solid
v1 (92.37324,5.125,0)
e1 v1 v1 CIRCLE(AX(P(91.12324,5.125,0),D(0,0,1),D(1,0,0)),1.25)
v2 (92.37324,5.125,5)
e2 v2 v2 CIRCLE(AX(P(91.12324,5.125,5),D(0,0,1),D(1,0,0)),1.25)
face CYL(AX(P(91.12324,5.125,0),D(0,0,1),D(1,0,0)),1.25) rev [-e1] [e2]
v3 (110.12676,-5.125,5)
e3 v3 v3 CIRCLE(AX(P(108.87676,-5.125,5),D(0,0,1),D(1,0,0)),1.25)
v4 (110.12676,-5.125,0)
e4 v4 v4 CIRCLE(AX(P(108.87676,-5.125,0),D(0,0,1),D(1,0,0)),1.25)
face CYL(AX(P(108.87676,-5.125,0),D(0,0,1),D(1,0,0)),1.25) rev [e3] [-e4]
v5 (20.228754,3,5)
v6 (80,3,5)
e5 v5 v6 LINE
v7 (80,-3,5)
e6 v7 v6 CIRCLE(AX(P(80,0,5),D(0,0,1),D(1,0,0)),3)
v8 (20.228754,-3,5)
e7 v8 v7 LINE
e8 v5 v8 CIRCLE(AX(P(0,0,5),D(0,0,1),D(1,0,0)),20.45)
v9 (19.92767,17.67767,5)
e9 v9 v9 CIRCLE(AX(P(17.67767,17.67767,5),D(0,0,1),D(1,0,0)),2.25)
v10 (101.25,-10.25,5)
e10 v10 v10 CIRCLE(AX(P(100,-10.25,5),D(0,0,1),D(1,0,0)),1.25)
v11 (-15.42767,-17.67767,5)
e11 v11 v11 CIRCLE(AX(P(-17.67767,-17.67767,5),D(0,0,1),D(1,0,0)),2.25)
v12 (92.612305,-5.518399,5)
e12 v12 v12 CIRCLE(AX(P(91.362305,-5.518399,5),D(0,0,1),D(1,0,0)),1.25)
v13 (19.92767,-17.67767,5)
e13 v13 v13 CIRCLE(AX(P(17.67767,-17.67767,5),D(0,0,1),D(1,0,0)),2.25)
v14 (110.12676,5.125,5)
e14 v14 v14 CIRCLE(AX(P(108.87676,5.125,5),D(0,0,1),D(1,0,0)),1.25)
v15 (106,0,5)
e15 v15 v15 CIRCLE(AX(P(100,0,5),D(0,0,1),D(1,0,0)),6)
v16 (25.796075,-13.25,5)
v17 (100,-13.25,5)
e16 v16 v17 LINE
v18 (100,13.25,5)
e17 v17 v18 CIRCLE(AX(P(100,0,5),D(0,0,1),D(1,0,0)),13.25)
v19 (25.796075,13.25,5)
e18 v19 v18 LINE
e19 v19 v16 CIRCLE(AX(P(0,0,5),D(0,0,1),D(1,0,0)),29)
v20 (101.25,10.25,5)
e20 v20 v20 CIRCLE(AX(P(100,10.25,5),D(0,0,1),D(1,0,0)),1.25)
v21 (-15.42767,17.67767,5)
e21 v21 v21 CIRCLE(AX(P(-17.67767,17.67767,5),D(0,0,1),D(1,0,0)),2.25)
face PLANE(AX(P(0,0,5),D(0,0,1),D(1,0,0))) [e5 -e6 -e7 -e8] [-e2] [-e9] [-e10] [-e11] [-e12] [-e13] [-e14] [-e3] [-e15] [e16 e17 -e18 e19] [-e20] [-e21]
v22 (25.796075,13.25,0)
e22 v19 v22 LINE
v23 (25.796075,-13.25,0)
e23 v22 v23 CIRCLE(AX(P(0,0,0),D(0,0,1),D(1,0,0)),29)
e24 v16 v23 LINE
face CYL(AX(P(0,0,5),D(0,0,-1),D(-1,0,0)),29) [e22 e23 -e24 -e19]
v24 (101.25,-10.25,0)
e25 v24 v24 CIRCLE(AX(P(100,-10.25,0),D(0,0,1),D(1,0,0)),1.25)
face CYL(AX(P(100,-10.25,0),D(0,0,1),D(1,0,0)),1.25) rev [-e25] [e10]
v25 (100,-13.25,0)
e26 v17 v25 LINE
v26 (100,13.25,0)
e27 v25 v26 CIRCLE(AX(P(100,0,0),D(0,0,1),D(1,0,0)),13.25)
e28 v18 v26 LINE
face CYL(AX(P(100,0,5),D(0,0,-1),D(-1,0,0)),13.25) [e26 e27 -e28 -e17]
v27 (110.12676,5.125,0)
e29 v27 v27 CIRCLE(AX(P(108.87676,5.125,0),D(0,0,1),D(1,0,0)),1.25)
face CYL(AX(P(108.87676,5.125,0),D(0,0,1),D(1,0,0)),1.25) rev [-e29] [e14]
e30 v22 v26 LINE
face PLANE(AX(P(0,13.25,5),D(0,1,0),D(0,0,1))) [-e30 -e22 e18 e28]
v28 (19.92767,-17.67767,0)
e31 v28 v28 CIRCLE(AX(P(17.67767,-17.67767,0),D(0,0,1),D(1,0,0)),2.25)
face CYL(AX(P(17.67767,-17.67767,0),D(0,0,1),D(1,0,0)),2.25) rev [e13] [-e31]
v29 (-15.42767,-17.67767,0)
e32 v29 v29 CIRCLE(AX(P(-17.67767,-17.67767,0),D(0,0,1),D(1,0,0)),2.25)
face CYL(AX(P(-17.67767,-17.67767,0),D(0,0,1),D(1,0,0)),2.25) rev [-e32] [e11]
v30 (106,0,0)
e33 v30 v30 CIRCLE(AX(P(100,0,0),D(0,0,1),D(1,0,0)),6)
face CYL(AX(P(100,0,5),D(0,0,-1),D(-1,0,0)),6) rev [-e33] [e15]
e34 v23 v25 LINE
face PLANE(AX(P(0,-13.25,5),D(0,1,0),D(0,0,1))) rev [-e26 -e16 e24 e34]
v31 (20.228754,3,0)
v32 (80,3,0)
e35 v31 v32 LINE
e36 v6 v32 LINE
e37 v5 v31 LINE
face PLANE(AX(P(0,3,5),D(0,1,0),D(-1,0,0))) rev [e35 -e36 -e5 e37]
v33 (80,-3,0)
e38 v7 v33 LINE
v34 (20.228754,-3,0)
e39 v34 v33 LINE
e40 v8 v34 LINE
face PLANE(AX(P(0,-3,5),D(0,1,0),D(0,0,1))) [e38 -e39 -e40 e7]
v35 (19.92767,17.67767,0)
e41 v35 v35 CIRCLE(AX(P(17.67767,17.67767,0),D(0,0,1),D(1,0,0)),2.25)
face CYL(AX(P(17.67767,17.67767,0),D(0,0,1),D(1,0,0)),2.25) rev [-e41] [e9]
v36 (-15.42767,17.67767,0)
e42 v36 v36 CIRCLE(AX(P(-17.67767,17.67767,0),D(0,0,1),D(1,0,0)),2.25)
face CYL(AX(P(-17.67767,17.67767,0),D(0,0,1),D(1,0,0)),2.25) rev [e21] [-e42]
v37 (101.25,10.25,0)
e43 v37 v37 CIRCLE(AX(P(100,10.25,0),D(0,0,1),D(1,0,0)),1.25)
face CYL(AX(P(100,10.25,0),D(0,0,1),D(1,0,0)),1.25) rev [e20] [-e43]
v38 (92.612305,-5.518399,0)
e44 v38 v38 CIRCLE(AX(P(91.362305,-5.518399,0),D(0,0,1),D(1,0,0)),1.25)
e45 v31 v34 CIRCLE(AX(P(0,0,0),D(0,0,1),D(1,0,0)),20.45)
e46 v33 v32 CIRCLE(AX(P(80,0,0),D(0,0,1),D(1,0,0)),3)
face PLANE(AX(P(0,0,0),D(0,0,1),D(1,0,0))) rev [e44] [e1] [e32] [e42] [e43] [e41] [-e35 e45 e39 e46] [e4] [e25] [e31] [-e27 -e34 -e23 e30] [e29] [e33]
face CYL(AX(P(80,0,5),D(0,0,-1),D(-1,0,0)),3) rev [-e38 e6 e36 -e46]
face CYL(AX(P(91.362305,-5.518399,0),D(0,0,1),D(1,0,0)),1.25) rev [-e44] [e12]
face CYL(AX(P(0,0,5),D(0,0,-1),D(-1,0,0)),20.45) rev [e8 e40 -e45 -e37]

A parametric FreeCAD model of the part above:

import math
import FreeCAD as App
import Part
import Sketcher
from FreeCAD import Vector

doc = App.newDocument("Part")
params = doc.addObject("Spreadsheet::Sheet", "Params")
for row, (alias, value) in enumerate([
    ("sketch1_diameter", "12 mm"),
    ("sketch1_radius", "29 mm"),
    ("sketch1_radius2", "3 mm"),
    ("sketch1_radius3", "13.25 mm"),
    ("sketch1_radius4", "20.45 mm"),
    ("pad1_length", "5 mm"),
    ("sketch2_diameter", "4.5 mm"),
    ("sketch2_diameter2", "2.5 mm"),
], start=1):
    params.set(f"A{row}", alias)
    params.set(f"B{row}", "=" + value)
    params.setAlias(f"B{row}", alias)

body = doc.addObject("PartDesign::Body", "Body")

# Sketch on XY plane
sketch1 = body.newObject("Sketcher::SketchObject", "Sketch")
sketch1.AttachmentSupport = (doc.getObject("XY_Plane"), [""])
sketch1.MapMode = "FlatFace"
sketch1.addGeometry([
    Part.ArcOfCircle(Part.Circle(Vector(0, 0, 0), Vector(0, 0, 1), 29), math.radians(27), math.radians(333)),  # 0
    Part.LineSegment(Vector(25.8, -13.2, 0), Vector(100, -13.2, 0)),  # 1
    Part.ArcOfCircle(Part.Circle(Vector(100, 0, 0), Vector(0, 0, 1), 13.2), math.radians(-90), math.radians(90)),  # 2
    Part.LineSegment(Vector(100, 13.2, 0), Vector(25.8, 13.2, 0)),  # 3
    Part.ArcOfCircle(Part.Circle(Vector(0, 0, 0), Vector(0, 0, 1), 20.4), math.radians(40), math.radians(320)),  # 4
    Part.ArcOfCircle(Part.Circle(Vector(0, 0, 0), Vector(0, 0, 1), 20.5), math.radians(8), math.radians(40)),  # 5
    Part.LineSegment(Vector(20.2, 3, 0), Vector(80, 3, 0)),  # 6
    Part.ArcOfCircle(Part.Circle(Vector(80, 0, 0), Vector(0, 0, 1), 3), math.radians(0), math.radians(90)),  # 7
    Part.ArcOfCircle(Part.Circle(Vector(80, 0, 0), Vector(0, 0, 1), 3), math.radians(-90), math.radians(0)),  # 8
    Part.LineSegment(Vector(80, -3, 0), Vector(20.2, -3, 0)),  # 9
    Part.ArcOfCircle(Part.Circle(Vector(0, 0, 0), Vector(0, 0, 1), 20.5), math.radians(-40), math.radians(-8)),  # 10
    Part.Circle(Vector(100, 0, 0), Vector(0, 0, 1), 6),  # 11
], False)
sketch1.addConstraint([
    Sketcher.Constraint("Coincident", 0, 2, 1, 1),
    Sketcher.Constraint("Tangent", 1, 2, 2, 1),
    Sketcher.Constraint("Tangent", 2, 2, 3, 1),
    Sketcher.Constraint("Coincident", 3, 2, 0, 1),
    Sketcher.Constraint("Tangent", 4, 1, 5, 2),
    Sketcher.Constraint("Coincident", 5, 1, 6, 1),
    Sketcher.Constraint("Tangent", 6, 2, 7, 2),
    Sketcher.Constraint("Tangent", 7, 1, 8, 2),
    Sketcher.Constraint("Tangent", 8, 1, 9, 1),
    Sketcher.Constraint("Coincident", 9, 2, 10, 2),
    Sketcher.Constraint("Tangent", 10, 1, 4, 2),
    Sketcher.Constraint("Horizontal", 1),
    Sketcher.Constraint("Horizontal", 3),
    Sketcher.Constraint("Horizontal", 6),
    Sketcher.Constraint("Horizontal", 9),
    Sketcher.Constraint("Coincident", 0, 3, -1, 1),
    Sketcher.Constraint("Coincident", 4, 3, -1, 1),
    Sketcher.Constraint("Coincident", 11, 3, 2, 3),
    Sketcher.Constraint("Equal", 4, 5),
    Sketcher.Constraint("Equal", 7, 8),
    Sketcher.Constraint("Equal", 5, 10),
    Sketcher.Constraint("PointOnObject", 2, 3, -1),
    Sketcher.Constraint("PointOnObject", 7, 3, -1),
    Sketcher.Constraint("PointOnObject", 7, 1, -1),
    Sketcher.Constraint("Horizontal", 3, 2, 4, 1),
    Sketcher.Constraint("Horizontal", 1, 2, 10, 1),
    Sketcher.Constraint("Diameter", 11, 12.0),
    Sketcher.Constraint("Radius", 0, 29.0),
    Sketcher.Constraint("Radius", 7, 3.0),
    Sketcher.Constraint("Radius", 2, 13.25),
    Sketcher.Constraint("Radius", 4, 20.45),
    Sketcher.Constraint("DistanceX", -1, 1, 2, 3, 100.0),
    Sketcher.Constraint("DistanceX", -1, 1, 7, 3, 80.0),
])
sketch1.setExpression("Constraints[26]", "Params.sketch1_diameter")
sketch1.setExpression("Constraints[27]", "Params.sketch1_radius")
sketch1.setExpression("Constraints[28]", "Params.sketch1_radius2")
sketch1.setExpression("Constraints[29]", "Params.sketch1_radius3")
sketch1.setExpression("Constraints[30]", "Params.sketch1_radius4")
pad1 = body.newObject("PartDesign::Pad", "Pad")
pad1.Profile = sketch1
pad1.setExpression("Length", "Params.pad1_length")

# Sketch on XY plane
sketch2 = body.newObject("Sketcher::SketchObject", "Sketch001")
sketch2.AttachmentSupport = (doc.getObject("XY_Plane"), [""])
sketch2.MapMode = "FlatFace"
sketch2.AttachmentOffset = App.Placement(Vector(0, 0, 5), App.Rotation())
sketch2.addGeometry([
    Part.Circle(Vector(17.7, 17.7, 0), Vector(0, 0, 1), 2.2),  # 0
    Part.Circle(Vector(17.7, -17.7, 0), Vector(0, 0, 1), 2.2),  # 1
    Part.Circle(Vector(-17.7, -17.7, 0), Vector(0, 0, 1), 2.2),  # 2
    Part.Circle(Vector(-17.7, 17.7, 0), Vector(0, 0, 1), 2.2),  # 3
    Part.Circle(Vector(100, 10.2, 0), Vector(0, 0, 1), 1.2),  # 4
    Part.Circle(Vector(108.9, 5.1, 0), Vector(0, 0, 1), 1.2),  # 5
    Part.Circle(Vector(91.1, 5.1, 0), Vector(0, 0, 1), 1.2),  # 6
    Part.Circle(Vector(91.4, -5.5, 0), Vector(0, 0, 1), 1.2),  # 7
    Part.Circle(Vector(108.9, -5.1, 0), Vector(0, 0, 1), 1.2),  # 8
    Part.Circle(Vector(100, -10.2, 0), Vector(0, 0, 1), 1.2),  # 9
], False)
sketch2.addConstraint([
    Sketcher.Constraint("Equal", 0, 1),
    Sketcher.Constraint("Equal", 1, 2),
    Sketcher.Constraint("Equal", 2, 3),
    Sketcher.Constraint("Equal", 4, 5),
    Sketcher.Constraint("Equal", 5, 6),
    Sketcher.Constraint("Equal", 6, 7),
    Sketcher.Constraint("Equal", 7, 8),
    Sketcher.Constraint("Equal", 8, 9),
    Sketcher.Constraint("Symmetric", 0, 3, 2, 3, -1, 1),
    Sketcher.Constraint("Symmetric", 1, 3, 3, 3, -1, 1),
    Sketcher.Constraint("Symmetric", 1, 3, 2, 3, -2),
    Sketcher.Constraint("Symmetric", 5, 3, 8, 3, -1),
    Sketcher.Constraint("Symmetric", 4, 3, 9, 3, -1),
    Sketcher.Constraint("Horizontal", 5, 3, 6, 3),
    Sketcher.Constraint("Diameter", 0, 4.5),
    Sketcher.Constraint("Diameter", 4, 2.5),
    Sketcher.Constraint("DistanceX", -1, 1, 4, 3, 100.0),
    Sketcher.Constraint("DistanceY", 9, 3, 4, 3, 20.5),
    Sketcher.Constraint("DistanceY", 8, 3, 5, 3, 10.25),
    Sketcher.Constraint("DistanceY", 7, 3, -1, 1, 5.518399),
    Sketcher.Constraint("DistanceX", -1, 1, 0, 3, 17.67767),
    Sketcher.Constraint("DistanceY", -1, 1, 0, 3, 17.67767),
    Sketcher.Constraint("DistanceX", -1, 1, 5, 3, 108.87676),
    Sketcher.Constraint("DistanceX", -1, 1, 6, 3, 91.12324),
    Sketcher.Constraint("DistanceX", -1, 1, 7, 3, 91.362305),
])
sketch2.setExpression("Constraints[14]", "Params.sketch2_diameter")
sketch2.setExpression("Constraints[15]", "Params.sketch2_diameter2")
pocket1 = body.newObject("PartDesign::Pocket", "Pocket")
pocket1.Profile = sketch2
pocket1.Type = "ThroughAll"

doc.recompute()
